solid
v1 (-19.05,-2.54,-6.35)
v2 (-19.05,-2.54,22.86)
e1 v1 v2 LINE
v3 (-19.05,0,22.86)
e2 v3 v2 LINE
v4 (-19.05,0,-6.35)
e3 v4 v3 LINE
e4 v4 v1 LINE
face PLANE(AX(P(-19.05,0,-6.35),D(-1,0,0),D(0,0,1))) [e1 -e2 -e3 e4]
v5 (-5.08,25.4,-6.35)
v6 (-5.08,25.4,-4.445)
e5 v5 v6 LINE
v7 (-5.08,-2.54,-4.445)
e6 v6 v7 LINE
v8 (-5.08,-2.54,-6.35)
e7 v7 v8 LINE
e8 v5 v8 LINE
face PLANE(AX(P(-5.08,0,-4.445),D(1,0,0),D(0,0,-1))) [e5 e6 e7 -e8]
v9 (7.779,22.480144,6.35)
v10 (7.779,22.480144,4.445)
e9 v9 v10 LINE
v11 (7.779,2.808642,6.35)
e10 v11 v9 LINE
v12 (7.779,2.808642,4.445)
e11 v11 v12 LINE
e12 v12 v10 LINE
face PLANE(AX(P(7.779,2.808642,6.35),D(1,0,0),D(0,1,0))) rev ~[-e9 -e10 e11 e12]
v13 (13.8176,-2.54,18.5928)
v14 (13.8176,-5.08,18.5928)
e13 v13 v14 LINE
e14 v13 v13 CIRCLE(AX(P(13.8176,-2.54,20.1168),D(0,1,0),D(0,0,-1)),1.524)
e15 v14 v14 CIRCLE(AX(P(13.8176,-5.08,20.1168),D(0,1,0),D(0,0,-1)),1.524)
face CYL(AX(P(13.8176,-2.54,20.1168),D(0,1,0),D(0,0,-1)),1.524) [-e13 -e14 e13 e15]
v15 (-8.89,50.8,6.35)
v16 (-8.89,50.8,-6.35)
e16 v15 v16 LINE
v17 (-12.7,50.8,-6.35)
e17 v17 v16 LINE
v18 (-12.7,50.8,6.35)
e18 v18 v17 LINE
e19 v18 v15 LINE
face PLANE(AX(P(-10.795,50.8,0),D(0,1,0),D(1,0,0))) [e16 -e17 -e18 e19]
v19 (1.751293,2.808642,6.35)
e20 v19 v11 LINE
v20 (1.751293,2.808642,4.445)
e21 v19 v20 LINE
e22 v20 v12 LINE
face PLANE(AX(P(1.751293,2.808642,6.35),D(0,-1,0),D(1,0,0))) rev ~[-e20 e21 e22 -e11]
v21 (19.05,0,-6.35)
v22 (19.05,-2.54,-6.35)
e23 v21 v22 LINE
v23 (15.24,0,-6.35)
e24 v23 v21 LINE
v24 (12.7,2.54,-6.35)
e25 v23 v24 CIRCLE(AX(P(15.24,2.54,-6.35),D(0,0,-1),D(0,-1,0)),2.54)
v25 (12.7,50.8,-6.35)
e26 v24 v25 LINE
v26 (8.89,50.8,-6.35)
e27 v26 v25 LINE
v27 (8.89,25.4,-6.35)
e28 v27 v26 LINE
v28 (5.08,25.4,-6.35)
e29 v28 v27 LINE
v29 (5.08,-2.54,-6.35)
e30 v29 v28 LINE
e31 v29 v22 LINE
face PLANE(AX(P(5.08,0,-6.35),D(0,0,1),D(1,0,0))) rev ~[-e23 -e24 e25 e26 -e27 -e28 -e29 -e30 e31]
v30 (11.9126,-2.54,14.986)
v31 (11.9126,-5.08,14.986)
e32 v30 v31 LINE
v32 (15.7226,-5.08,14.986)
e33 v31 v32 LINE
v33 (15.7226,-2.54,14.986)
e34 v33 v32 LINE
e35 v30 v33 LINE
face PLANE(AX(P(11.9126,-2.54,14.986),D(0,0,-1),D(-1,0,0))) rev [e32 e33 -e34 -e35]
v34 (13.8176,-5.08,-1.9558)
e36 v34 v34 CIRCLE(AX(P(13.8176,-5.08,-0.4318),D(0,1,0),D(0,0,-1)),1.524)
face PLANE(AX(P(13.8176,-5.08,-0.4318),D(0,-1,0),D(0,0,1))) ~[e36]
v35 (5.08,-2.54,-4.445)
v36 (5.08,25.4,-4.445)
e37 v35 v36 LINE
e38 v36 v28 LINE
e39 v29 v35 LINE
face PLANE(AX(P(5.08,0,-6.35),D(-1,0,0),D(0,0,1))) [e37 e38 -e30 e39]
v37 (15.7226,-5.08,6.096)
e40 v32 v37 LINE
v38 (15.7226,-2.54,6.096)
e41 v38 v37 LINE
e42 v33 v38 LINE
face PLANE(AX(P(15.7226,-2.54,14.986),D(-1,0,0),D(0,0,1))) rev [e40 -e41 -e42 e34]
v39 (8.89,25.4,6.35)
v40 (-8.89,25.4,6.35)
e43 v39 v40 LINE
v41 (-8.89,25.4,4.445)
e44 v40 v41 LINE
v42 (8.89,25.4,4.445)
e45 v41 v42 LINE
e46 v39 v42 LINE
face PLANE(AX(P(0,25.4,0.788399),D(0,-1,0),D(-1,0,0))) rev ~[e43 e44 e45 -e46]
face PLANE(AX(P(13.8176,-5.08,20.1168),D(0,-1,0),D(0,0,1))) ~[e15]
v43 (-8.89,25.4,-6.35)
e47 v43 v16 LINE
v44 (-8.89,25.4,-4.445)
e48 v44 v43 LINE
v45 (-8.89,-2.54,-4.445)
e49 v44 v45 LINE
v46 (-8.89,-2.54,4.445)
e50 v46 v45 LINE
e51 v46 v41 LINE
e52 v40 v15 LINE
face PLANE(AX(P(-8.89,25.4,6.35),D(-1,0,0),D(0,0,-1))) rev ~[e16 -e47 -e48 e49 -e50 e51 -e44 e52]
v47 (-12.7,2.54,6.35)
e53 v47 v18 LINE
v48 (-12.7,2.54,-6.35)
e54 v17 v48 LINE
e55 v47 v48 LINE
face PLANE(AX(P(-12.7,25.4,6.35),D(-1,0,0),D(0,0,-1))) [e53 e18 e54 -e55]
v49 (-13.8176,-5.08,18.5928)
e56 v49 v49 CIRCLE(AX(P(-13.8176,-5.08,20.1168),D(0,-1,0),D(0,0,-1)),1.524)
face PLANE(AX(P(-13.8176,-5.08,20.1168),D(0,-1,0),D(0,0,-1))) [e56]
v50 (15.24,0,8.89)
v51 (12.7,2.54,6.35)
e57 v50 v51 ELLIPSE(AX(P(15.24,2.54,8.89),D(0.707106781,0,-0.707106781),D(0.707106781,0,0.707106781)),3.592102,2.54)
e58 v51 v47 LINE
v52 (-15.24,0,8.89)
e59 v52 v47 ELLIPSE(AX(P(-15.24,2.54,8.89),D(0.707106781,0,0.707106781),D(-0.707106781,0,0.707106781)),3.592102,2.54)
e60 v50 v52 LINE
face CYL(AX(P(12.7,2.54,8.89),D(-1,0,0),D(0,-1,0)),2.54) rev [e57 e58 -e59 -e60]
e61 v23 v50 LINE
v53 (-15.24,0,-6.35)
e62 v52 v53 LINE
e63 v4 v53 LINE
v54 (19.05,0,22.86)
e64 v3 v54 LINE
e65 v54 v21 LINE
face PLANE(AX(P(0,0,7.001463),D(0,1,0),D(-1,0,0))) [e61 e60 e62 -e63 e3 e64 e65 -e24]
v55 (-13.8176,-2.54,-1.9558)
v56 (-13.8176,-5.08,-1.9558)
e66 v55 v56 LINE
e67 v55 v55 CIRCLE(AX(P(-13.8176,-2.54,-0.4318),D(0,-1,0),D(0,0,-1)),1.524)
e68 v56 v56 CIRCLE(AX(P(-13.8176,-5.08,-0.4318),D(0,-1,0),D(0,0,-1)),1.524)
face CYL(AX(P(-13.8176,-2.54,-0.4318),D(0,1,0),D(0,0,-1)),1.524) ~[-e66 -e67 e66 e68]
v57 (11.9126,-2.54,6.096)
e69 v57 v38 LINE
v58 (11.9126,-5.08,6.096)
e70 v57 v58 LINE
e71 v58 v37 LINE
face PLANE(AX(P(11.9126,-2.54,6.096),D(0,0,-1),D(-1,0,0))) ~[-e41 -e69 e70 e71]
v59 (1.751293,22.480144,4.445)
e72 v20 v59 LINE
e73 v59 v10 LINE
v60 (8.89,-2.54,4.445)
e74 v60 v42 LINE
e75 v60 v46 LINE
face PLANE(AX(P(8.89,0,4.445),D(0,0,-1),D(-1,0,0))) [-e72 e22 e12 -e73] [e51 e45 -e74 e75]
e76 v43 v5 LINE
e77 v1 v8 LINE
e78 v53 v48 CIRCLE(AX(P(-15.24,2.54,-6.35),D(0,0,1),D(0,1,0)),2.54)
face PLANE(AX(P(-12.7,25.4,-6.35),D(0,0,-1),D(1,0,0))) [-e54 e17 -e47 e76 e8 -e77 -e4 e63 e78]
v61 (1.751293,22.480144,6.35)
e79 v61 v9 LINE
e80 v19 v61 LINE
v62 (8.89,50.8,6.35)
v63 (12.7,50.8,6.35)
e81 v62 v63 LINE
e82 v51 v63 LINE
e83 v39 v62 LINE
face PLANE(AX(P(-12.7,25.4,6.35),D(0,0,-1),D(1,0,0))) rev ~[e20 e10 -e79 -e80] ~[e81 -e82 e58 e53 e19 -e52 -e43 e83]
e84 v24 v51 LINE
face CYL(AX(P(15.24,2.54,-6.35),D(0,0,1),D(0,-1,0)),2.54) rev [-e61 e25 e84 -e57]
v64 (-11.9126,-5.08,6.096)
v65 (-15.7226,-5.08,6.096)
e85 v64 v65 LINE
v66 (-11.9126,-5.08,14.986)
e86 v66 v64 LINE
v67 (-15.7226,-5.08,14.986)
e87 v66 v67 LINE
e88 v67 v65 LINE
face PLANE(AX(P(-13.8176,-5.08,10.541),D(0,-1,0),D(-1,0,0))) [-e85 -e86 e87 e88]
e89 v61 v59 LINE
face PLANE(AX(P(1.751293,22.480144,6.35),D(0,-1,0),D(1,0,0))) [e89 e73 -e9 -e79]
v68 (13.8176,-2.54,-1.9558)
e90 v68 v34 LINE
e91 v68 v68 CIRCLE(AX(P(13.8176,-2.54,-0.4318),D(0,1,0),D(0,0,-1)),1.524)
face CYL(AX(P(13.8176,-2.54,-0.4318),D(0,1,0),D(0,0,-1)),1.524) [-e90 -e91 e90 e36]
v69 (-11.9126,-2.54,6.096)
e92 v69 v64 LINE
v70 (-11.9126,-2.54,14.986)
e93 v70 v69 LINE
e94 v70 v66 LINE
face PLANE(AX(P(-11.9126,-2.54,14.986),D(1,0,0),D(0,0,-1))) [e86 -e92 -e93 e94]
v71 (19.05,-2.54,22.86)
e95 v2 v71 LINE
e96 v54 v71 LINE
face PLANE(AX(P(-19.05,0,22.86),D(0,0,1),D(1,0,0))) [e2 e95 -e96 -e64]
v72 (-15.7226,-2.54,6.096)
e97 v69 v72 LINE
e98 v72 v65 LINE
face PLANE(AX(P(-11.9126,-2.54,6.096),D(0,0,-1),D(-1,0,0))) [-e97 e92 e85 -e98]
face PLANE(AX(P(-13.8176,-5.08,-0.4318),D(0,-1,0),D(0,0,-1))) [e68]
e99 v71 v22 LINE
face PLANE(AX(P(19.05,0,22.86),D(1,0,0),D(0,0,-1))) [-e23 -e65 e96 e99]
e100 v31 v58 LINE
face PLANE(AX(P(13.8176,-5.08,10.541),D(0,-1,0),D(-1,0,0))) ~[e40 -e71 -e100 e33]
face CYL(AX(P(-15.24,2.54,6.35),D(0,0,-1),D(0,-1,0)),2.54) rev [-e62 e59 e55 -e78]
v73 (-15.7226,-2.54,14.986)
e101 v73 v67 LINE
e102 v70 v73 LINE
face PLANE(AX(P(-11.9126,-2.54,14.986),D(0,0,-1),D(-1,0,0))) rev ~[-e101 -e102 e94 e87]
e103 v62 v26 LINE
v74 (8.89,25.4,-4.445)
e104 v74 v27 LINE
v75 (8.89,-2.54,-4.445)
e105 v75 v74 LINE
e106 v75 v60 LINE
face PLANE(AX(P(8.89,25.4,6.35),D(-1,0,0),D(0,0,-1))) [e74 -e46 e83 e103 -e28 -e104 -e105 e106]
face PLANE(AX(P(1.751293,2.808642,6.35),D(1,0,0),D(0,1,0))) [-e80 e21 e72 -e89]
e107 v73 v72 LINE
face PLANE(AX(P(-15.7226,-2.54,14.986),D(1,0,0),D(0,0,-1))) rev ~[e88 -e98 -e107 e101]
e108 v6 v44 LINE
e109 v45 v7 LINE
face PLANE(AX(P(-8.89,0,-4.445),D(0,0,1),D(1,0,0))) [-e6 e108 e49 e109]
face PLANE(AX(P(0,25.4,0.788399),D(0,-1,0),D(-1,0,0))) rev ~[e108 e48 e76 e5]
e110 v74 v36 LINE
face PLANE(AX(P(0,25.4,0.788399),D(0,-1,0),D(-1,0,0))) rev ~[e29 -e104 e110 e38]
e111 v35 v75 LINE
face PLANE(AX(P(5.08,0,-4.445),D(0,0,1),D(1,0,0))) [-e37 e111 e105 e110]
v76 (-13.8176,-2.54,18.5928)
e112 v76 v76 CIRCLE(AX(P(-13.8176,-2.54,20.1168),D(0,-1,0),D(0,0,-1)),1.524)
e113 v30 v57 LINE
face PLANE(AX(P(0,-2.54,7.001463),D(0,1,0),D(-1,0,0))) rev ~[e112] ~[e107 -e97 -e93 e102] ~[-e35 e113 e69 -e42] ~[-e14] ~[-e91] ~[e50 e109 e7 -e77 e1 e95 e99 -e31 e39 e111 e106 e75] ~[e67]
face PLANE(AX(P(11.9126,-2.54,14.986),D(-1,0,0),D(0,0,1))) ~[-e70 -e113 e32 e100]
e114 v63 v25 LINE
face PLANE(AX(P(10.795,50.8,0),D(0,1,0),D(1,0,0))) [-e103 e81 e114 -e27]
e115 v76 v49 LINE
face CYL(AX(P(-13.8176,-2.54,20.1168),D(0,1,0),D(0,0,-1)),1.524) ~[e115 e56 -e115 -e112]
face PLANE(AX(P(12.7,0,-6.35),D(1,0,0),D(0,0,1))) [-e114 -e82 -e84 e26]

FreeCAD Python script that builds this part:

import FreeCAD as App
import Part
import Sketcher
Q = App.Units.Quantity


def edges_at(feature, points):
    """Names of the edges that pass closest to the given points."""
    edges = feature.Shape.Edges
    near = lambda p: min(range(len(edges)), key=lambda i: edges[i].distToShape(Part.Vertex(*p))[0])
    return sorted({f"Edge{near(p) + 1}" for p in points})


def add_polygon(sketch, points):
    """Adds a closed chain of lines whose ends are joined by coincident constraints."""
    first, n = sketch.GeometryCount, len(points)
    for a, b in zip(points, points[1:] + points[:1]):
        sketch.addGeometry(Part.LineSegment(App.Vector(*a, 0), App.Vector(*b, 0)), False)
    for i in range(n):
        sketch.addConstraint(Sketcher.Constraint("Coincident", first + i, 2, first + (i + 1) % n, 1))

doc = App.newDocument("Part")
params = doc.addObject("Spreadsheet::Sheet", "Params")
for row, (alias, value) in enumerate([
    ("sketch1_width", "1 in"),
    ("sketch1_width2", "0.3 in"),
    ("sketch1_width3", "0.7 in"),
    ("sketch1_height", "0.5 in"),
    ("sketch1_height2", "0.35 in"),
    ("pad1_length", "1 in"),
    ("sketch2_width", "0.7 in"),
    ("sketch2_width2", "1.5 in"),
    ("sketch2_width3", "0.55 in"),
    ("sketch2_height", "0.35 in"),
    ("sketch2_height2", "1.15 in"),
    ("pad2_length", "0.1 in"),
    ("fillet_radius", "0.1 in"),
    ("sketch3_diameter", "0.12 in"),
    ("pad3_length", "0.1 in"),
    ("sketch4_diameter", "0.12 in"),
    ("sketch4_width", "0.15 in"),
    ("sketch4_height", "0.35 in"),
    ("pad4_length", "0.1 in"),
    ("sketch6_height", "0.5 in"),
    ("sketch6_width", "0.15 in"),
    ("pad5_length", "1 in"),
], start=1):
    params.set(f"A{row}", alias)
    params.set(f"B{row}", "=" + value)
    params.setAlias(f"B{row}", alias)

body = doc.addObject("PartDesign::Body", "Body")

sketch1 = body.newObject("Sketcher::SketchObject", "Sketch")
sketch1.AttachmentSupport = (doc.getObject("XZ_Plane"), [""])
sketch1.MapMode = "FlatFace"
add_polygon(sketch1, [(-5.1, -6.3), (-12.7, -6.3), (-12.7, 6.3), (12.7, 6.3), (12.7, -6.3), (5.1, -6.3), (5.1, -4.4), (8.9, -4.4), (8.9, 4.4), (-8.9, 4.4), (-8.9, -4.4), (-5.1, -4.4)])
sketch1.addConstraint([
    Sketcher.Constraint("Horizontal", 0),
    Sketcher.Constraint("Vertical", 1),
    Sketcher.Constraint("Horizontal", 2),
    Sketcher.Constraint("Vertical", 3),
    Sketcher.Constraint("Horizontal", 4),
    Sketcher.Constraint("Vertical", 5),
    Sketcher.Constraint("Horizontal", 6),
    Sketcher.Constraint("Vertical", 7),
    Sketcher.Constraint("Horizontal", 8),
    Sketcher.Constraint("Vertical", 9),
    Sketcher.Constraint("Horizontal", 10),
    Sketcher.Constraint("Vertical", 11),
    Sketcher.Constraint("Symmetric", 0, 2, 2, 2, -1, 1),
    Sketcher.Constraint("Symmetric", 6, 2, 8, 2, -1, 1),
    Sketcher.Constraint("Symmetric", 5, 2, 10, 2, -2),
    Sketcher.Constraint("Horizontal", 0, 2, 3, 2),
    Sketcher.Constraint("DistanceX", 2, 1, 2, 2, Q("1 in")),
    Sketcher.Constraint("DistanceX", 0, 2, 0, 1, Q("0.3 in")),
    Sketcher.Constraint("DistanceX", 8, 2, 8, 1, Q("0.7 in")),
    Sketcher.Constraint("DistanceY", 1, 1, 1, 2, Q("0.5 in")),
    Sketcher.Constraint("DistanceY", 7, 1, 7, 2, Q("0.35 in")),
])
sketch1.setExpression("Constraints[28]", "Params.sketch1_width")
sketch1.setExpression("Constraints[29]", "Params.sketch1_width2")
sketch1.setExpression("Constraints[30]", "Params.sketch1_width3")
sketch1.setExpression("Constraints[31]", "Params.sketch1_height")
sketch1.setExpression("Constraints[32]", "Params.sketch1_height2")
pad1 = body.newObject("PartDesign::Pad", "Pad")
pad1.Profile = sketch1
pad1.setExpression("Length", "Params.pad1_length")
pad1.Reversed = True

sketch2 = body.newObject("Sketcher::SketchObject", "Sketch001")
sketch2.AttachmentSupport = (doc.getObject("XZ_Plane"), [""])
sketch2.MapMode = "FlatFace"
add_polygon(sketch2, [(-19.1, -6.3), (-5.1, -6.3), (-5.1, -4.4), (-8.9, -4.4), (-8.9, 4.4), (8.9, 4.4), (8.9, -4.4), (5.1, -4.4), (5.1, -6.3), (19.1, -6.3), (19.1, 22.9), (-19.1, 22.9)])
sketch2.addConstraint([
    Sketcher.Constraint("Horizontal", 0),
    Sketcher.Constraint("Vertical", 1),
    Sketcher.Constraint("Horizontal", 2),
    Sketcher.Constraint("Vertical", 3),
    Sketcher.Constraint("Horizontal", 4),
    Sketcher.Constraint("Vertical", 5),
    Sketcher.Constraint("Horizontal", 6),
    Sketcher.Constraint("Vertical", 7),
    Sketcher.Constraint("Horizontal", 8),
    Sketcher.Constraint("Vertical", 9),
    Sketcher.Constraint("Horizontal", 10),
    Sketcher.Constraint("Vertical", 11),
    Sketcher.Constraint("Symmetric", 2, 2, 4, 2, -1, 1),
    Sketcher.Constraint("Symmetric", 1, 2, 6, 2, -2),
    Sketcher.Constraint("Symmetric", 8, 2, 11, 2, -2),
    Sketcher.Constraint("DistanceX", 4, 1, 4, 2, Q("0.7 in")),
    Sketcher.Constraint("DistanceX", 10, 2, 10, 1, Q("1.5 in")),
    Sketcher.Constraint("DistanceX", 0, 1, 0, 2, Q("0.55 in")),
    Sketcher.Constraint("DistanceY", 3, 1, 3, 2, Q("0.35 in")),
    Sketcher.Constraint("DistanceY", 9, 1, 9, 2, Q("1.15 in")),
    Sketcher.Constraint("DistanceY", -1, 1, 9, 2, Q("0.9 in")),
])
sketch2.setExpression("Constraints[27]", "Params.sketch2_width")
sketch2.setExpression("Constraints[28]", "Params.sketch2_width2")
sketch2.setExpression("Constraints[29]", "Params.sketch2_width3")
sketch2.setExpression("Constraints[30]", "Params.sketch2_height")
sketch2.setExpression("Constraints[31]", "Params.sketch2_height2")
pad2 = body.newObject("PartDesign::Pad", "Pad001")
pad2.Profile = sketch2
pad2.setExpression("Length", "Params.pad2_length")
doc.recompute()

fillet = body.newObject("PartDesign::Fillet", "Fillet")
fillet.Base = (pad2, edges_at(pad2, [(12.7, 0, 0), (0, 0, 6.35), (-12.7, 0, 0)]))
fillet.setExpression("Radius", "Params.fillet_radius")

sketch3 = body.newObject("Sketcher::SketchObject", "Sketch002")
sketch3.AttachmentSupport = (doc.getObject("XZ_Plane"), [""])
sketch3.MapMode = "FlatFace"
sketch3.AttachmentOffset = App.Placement(App.Vector(0, 0, 0.1 * 25.4), App.Rotation())
sketch3.addGeometry(Part.Circle(App.Vector(-13.8, -0.4, 0), App.Vector(0, 0, 1), 1.5), False)
sketch3.addConstraint([
    Sketcher.Constraint("Diameter", 0, Q("0.12 in")),
    Sketcher.Constraint("DistanceX", 0, 3, -1, 1, Q("0.544 in")),
    Sketcher.Constraint("DistanceY", 0, 3, -1, 1, Q("0.017 in")),
])
sketch3.setExpression("Constraints[0]", "Params.sketch3_diameter")
pad3 = body.newObject("PartDesign::Pad", "Pad002")
pad3.Profile = sketch3
pad3.setExpression("Length", "Params.pad3_length")

sketch4 = body.newObject("Sketcher::SketchObject", "Sketch003")
sketch4.AttachmentSupport = (doc.getObject("XZ_Plane"), [""])
sketch4.MapMode = "FlatFace"
sketch4.AttachmentOffset = App.Placement(App.Vector(0, 0, 0.1 * 25.4), App.Rotation())
sketch4.addGeometry(Part.Circle(App.Vector(-13.8, 20.1, 0), App.Vector(0, 0, 1), 1.5), False)
add_polygon(sketch4, [(-11.9, 6.1), (-11.9, 15), (-15.7, 15), (-15.7, 6.1)])
sketch4.addConstraint([
    Sketcher.Constraint("Vertical", 1),
    Sketcher.Constraint("Horizontal", 2),
    Sketcher.Constraint("Vertical", 3),
    Sketcher.Constraint("Horizontal", 4),
    Sketcher.Constraint("Diameter", 0, Q("0.12 in")),
    Sketcher.Constraint("DistanceX", 2, 2, 2, 1, Q("0.15 in")),
    Sketcher.Constraint("DistanceY", 1, 1, 1, 2, Q("0.35 in")),
    Sketcher.Constraint("DistanceY", -1, 1, 1, 2, Q("0.59 in")),
    Sketcher.Constraint("DistanceX", 0, 3, -1, 1, Q("0.544 in")),
    Sketcher.Constraint("DistanceY", -1, 1, 0, 3, Q("0.792 in")),
    Sketcher.Constraint("DistanceX", 1, 2, -1, 1, Q("0.469 in")),
])
sketch4.setExpression("Constraints[8]", "Params.sketch4_diameter")
sketch4.setExpression("Constraints[9]", "Params.sketch4_width")
sketch4.setExpression("Constraints[10]", "Params.sketch4_height")
pad4 = body.newObject("PartDesign::Pad", "Pad003")
pad4.Profile = sketch4
pad4.setExpression("Length", "Params.pad4_length")
doc.recompute()

mirrored = body.newObject("PartDesign::Mirrored", "Mirrored")
mirrored.Originals = [pad3, pad4]
mirrored.MirrorPlane = (doc.getObject("YZ_Plane"), [""])
body.Tip = mirrored

sketch5 = body.newObject("Sketcher::SketchObject", "Sketch004")
sketch5.AttachmentSupport = (doc.getObject("XY_Plane"), [""])
sketch5.MapMode = "FlatFace"
sketch5.AttachmentOffset = App.Placement(App.Vector(0, 0, 0.25 * 25.4), App.Rotation())
add_polygon(sketch5, [(2, 22), (2, 3), (8, 3), (8, 22)])
sketch5.addConstraint([
    Sketcher.Constraint("Vertical", 0),
    Sketcher.Constraint("Horizontal", 1),
    Sketcher.Constraint("Vertical", 2),
    Sketcher.Constraint("Horizontal", 3),
    Sketcher.Constraint("DistanceY", 0, 2, 0, 1, Q("19.671502 mm")),
    Sketcher.Constraint("DistanceX", -1, 1, 1, 2, Q("7.779 mm")),
    Sketcher.Constraint("DistanceX", 1, 1, 1, 2, Q("6.027707 mm")),
    Sketcher.Constraint("DistanceY", -1, 1, 0, 2, Q("2.808642 mm")),
])
pocket1 = body.newObject("PartDesign::Pocket", "Pocket")
pocket1.Profile = sketch5
pocket1.Type = "UpToFirst"

sketch6 = body.newObject("Sketcher::SketchObject", "Sketch005")
sketch6.AttachmentSupport = (doc.getObject("XZ_Plane"), [""])
sketch6.MapMode = "FlatFace"
sketch6.AttachmentOffset = App.Placement(App.Vector(0, 0, -1 * 25.4), App.Rotation())
add_polygon(sketch6, [(-12.7, -6.3), (-12.7, 6.3), (-8.9, 6.3), (-8.9, -6.3)])
add_polygon(sketch6, [(8.9, -6.3), (8.9, 6.3), (12.7, 6.3), (12.7, -6.3)])
sketch6.addConstraint([
    Sketcher.Constraint("Vertical", 0),
    Sketcher.Constraint("Horizontal", 1),
    Sketcher.Constraint("Vertical", 2),
    Sketcher.Constraint("Horizontal", 3),
    Sketcher.Constraint("Vertical", 4),
    Sketcher.Constraint("Horizontal", 5),
    Sketcher.Constraint("Vertical", 6),
    Sketcher.Constraint("Horizontal", 7),
    Sketcher.Constraint("Symmetric", 2, 2, 4, 2, -1, 1),
    Sketcher.Constraint("Symmetric", 0, 2, 6, 2, -1, 1),
    Sketcher.Constraint("Horizontal", 1, 2, 4, 2),
    Sketcher.Constraint("DistanceY", 0, 1, 0, 2, Q("0.5 in")),
    Sketcher.Constraint("DistanceX", 0, 2, 5, 2, Q("1 in")),
    Sketcher.Constraint("DistanceX", 1, 1, 1, 2, Q("0.15 in")),
])
sketch6.setExpression("Constraints[19]", "Params.sketch6_height")
sketch6.setExpression("Constraints[21]", "Params.sketch6_width")
pad5 = body.newObject("PartDesign::Pad", "Pad004")
pad5.Profile = sketch6
pad5.setExpression("Length", "Params.pad5_length")
pad5.Reversed = True

doc.recompute()
